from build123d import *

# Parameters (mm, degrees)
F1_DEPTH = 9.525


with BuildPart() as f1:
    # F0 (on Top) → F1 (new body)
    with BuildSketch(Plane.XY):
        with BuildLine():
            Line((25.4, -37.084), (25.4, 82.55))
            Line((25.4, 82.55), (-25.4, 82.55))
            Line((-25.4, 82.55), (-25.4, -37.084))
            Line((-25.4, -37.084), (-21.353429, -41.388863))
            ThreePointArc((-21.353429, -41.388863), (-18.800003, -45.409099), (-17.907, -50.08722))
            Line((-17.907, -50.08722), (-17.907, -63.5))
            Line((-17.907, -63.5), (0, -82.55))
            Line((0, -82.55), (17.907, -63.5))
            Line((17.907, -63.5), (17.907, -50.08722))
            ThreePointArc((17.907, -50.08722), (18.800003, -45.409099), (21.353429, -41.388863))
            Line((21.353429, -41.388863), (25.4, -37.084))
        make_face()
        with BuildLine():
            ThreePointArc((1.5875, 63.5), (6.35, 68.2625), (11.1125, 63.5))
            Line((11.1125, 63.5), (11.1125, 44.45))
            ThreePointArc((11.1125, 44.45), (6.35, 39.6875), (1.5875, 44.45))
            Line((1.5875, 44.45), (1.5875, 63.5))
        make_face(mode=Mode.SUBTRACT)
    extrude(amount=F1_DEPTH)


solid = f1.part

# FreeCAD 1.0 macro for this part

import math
import FreeCAD as App
import Part
import Sketcher
from FreeCAD import Vector
Q = App.Units.Quantity

doc = App.newDocument("Part")
body = doc.addObject("PartDesign::Body", "Body")

# Sketch on XY plane
sketch1 = body.newObject("Sketcher::SketchObject", "Sketch")
sketch1.AttachmentSupport = (doc.getObject("XY_Plane"), [""])
sketch1.MapMode = "FlatFace"
sketch1.addGeometry([
    Part.LineSegment(Vector(25.4, -37.1, 0), Vector(25.4, 82.5, 0)),  # 0
    Part.LineSegment(Vector(25.4, 82.5, 0), Vector(-25.4, 82.5, 0)),  # 1
    Part.LineSegment(Vector(-25.4, 82.5, 0), Vector(-25.4, -37.1, 0)),  # 2
    Part.LineSegment(Vector(-25.4, -37.1, 0), Vector(-21.4, -41.4, 0)),  # 3
    Part.ArcOfCircle(Part.Circle(Vector(-30.6, -50.1, 0), Vector(0, 0, 1), 12.7), math.radians(0), math.radians(43)),  # 4
    Part.LineSegment(Vector(-17.9, -50.1, 0), Vector(-17.9, -63.5, 0)),  # 5
    Part.LineSegment(Vector(-17.9, -63.5, 0), Vector(0, -82.5, 0)),  # 6
    Part.LineSegment(Vector(0, -82.5, 0), Vector(17.9, -63.5, 0)),  # 7
    Part.LineSegment(Vector(17.9, -63.5, 0), Vector(17.9, -50.1, 0)),  # 8
    Part.ArcOfCircle(Part.Circle(Vector(30.6, -50.1, 0), Vector(0, 0, 1), 12.7), math.radians(137), math.radians(180)),  # 9
    Part.LineSegment(Vector(21.4, -41.4, 0), Vector(25.4, -37.1, 0)),  # 10
    Part.LineSegment(Vector(1.6, 44.5, 0), Vector(1.6, 63.5, 0)),  # 11
    Part.ArcOfCircle(Part.Circle(Vector(6.3, 63.5, 0), Vector(0, 0, 1), 4.8), math.radians(0), math.radians(180)),  # 12
    Part.LineSegment(Vector(11.1, 63.5, 0), Vector(11.1, 44.5, 0)),  # 13
    Part.ArcOfCircle(Part.Circle(Vector(6.3, 44.5, 0), Vector(0, 0, 1), 4.8), math.radians(180), math.radians(360)),  # 14
], False)
sketch1.addConstraint([
    Sketcher.Constraint("Coincident", 0, 2, 1, 1),
    Sketcher.Constraint("Coincident", 1, 2, 2, 1),
    Sketcher.Constraint("Coincident", 2, 2, 3, 1),
    Sketcher.Constraint("Tangent", 3, 2, 4, 2),
    Sketcher.Constraint("Tangent", 4, 1, 5, 1),
    Sketcher.Constraint("Coincident", 5, 2, 6, 1),
    Sketcher.Constraint("Coincident", 6, 2, 7, 1),
    Sketcher.Constraint("Coincident", 7, 2, 8, 1),
    Sketcher.Constraint("Tangent", 8, 2, 9, 2),
    Sketcher.Constraint("Tangent", 9, 1, 10, 1),
    Sketcher.Constraint("Coincident", 10, 2, 0, 1),
    Sketcher.Constraint("Tangent", 11, 2, 12, 2),
    Sketcher.Constraint("Tangent", 12, 1, 13, 1),
    Sketcher.Constraint("Tangent", 13, 2, 14, 2),
    Sketcher.Constraint("Tangent", 14, 1, 11, 1),
    Sketcher.Constraint("Vertical", 0),
    Sketcher.Constraint("Horizontal", 1),
    Sketcher.Constraint("Vertical", 2),
    Sketcher.Constraint("Vertical", 5),
    Sketcher.Constraint("Vertical", 8),
    Sketcher.Constraint("Vertical", 11),
    Sketcher.Constraint("Vertical", 13),
    Sketcher.Constraint("Equal", 4, 9),
    Sketcher.Constraint("Symmetric", 4, 3, 9, 3, -2),
    Sketcher.Constraint("Symmetric", 2, 2, 10, 2, -2),
    Sketcher.Constraint("PointOnObject", 6, 2, -2),
    Sketcher.Constraint("Parallel", 3, 6),
    Sketcher.Constraint("Parallel", 7, 10),
    Sketcher.Constraint("Radius", 4, Q("0.5 in")),
    Sketcher.Constraint("DistanceX", 1, 2, 1, 1, Q("2 in")),
    Sketcher.Constraint("Radius", 12, Q("0.1875 in")),
    Sketcher.Constraint("DistanceY", 0, 1, 0, 2, Q("4.71 in")),
    Sketcher.Constraint("DistanceY", 11, 1, 11, 2, Q("0.75 in")),
    Sketcher.Constraint("DistanceY", -1, 1, 12, 3, Q("2.5 in")),
    Sketcher.Constraint("DistanceY", 5, 2, -1, 1, Q("2.5 in")),
    Sketcher.Constraint("DistanceY", 14, 3, 0, 2, Q("1.5 in")),
    Sketcher.Constraint("DistanceX", -1, 1, 12, 3, Q("0.25 in")),
    Sketcher.Constraint("DistanceY", 6, 2, -1, 1, Q("3.25 in")),
    Sketcher.Constraint("DistanceX", 4, 3, 9, 3, Q("2.41 in")),
])
pad1 = body.newObject("PartDesign::Pad", "Pad")
pad1.Profile = sketch1
pad1.Length = Q("0.375 in")

doc.recompute()
